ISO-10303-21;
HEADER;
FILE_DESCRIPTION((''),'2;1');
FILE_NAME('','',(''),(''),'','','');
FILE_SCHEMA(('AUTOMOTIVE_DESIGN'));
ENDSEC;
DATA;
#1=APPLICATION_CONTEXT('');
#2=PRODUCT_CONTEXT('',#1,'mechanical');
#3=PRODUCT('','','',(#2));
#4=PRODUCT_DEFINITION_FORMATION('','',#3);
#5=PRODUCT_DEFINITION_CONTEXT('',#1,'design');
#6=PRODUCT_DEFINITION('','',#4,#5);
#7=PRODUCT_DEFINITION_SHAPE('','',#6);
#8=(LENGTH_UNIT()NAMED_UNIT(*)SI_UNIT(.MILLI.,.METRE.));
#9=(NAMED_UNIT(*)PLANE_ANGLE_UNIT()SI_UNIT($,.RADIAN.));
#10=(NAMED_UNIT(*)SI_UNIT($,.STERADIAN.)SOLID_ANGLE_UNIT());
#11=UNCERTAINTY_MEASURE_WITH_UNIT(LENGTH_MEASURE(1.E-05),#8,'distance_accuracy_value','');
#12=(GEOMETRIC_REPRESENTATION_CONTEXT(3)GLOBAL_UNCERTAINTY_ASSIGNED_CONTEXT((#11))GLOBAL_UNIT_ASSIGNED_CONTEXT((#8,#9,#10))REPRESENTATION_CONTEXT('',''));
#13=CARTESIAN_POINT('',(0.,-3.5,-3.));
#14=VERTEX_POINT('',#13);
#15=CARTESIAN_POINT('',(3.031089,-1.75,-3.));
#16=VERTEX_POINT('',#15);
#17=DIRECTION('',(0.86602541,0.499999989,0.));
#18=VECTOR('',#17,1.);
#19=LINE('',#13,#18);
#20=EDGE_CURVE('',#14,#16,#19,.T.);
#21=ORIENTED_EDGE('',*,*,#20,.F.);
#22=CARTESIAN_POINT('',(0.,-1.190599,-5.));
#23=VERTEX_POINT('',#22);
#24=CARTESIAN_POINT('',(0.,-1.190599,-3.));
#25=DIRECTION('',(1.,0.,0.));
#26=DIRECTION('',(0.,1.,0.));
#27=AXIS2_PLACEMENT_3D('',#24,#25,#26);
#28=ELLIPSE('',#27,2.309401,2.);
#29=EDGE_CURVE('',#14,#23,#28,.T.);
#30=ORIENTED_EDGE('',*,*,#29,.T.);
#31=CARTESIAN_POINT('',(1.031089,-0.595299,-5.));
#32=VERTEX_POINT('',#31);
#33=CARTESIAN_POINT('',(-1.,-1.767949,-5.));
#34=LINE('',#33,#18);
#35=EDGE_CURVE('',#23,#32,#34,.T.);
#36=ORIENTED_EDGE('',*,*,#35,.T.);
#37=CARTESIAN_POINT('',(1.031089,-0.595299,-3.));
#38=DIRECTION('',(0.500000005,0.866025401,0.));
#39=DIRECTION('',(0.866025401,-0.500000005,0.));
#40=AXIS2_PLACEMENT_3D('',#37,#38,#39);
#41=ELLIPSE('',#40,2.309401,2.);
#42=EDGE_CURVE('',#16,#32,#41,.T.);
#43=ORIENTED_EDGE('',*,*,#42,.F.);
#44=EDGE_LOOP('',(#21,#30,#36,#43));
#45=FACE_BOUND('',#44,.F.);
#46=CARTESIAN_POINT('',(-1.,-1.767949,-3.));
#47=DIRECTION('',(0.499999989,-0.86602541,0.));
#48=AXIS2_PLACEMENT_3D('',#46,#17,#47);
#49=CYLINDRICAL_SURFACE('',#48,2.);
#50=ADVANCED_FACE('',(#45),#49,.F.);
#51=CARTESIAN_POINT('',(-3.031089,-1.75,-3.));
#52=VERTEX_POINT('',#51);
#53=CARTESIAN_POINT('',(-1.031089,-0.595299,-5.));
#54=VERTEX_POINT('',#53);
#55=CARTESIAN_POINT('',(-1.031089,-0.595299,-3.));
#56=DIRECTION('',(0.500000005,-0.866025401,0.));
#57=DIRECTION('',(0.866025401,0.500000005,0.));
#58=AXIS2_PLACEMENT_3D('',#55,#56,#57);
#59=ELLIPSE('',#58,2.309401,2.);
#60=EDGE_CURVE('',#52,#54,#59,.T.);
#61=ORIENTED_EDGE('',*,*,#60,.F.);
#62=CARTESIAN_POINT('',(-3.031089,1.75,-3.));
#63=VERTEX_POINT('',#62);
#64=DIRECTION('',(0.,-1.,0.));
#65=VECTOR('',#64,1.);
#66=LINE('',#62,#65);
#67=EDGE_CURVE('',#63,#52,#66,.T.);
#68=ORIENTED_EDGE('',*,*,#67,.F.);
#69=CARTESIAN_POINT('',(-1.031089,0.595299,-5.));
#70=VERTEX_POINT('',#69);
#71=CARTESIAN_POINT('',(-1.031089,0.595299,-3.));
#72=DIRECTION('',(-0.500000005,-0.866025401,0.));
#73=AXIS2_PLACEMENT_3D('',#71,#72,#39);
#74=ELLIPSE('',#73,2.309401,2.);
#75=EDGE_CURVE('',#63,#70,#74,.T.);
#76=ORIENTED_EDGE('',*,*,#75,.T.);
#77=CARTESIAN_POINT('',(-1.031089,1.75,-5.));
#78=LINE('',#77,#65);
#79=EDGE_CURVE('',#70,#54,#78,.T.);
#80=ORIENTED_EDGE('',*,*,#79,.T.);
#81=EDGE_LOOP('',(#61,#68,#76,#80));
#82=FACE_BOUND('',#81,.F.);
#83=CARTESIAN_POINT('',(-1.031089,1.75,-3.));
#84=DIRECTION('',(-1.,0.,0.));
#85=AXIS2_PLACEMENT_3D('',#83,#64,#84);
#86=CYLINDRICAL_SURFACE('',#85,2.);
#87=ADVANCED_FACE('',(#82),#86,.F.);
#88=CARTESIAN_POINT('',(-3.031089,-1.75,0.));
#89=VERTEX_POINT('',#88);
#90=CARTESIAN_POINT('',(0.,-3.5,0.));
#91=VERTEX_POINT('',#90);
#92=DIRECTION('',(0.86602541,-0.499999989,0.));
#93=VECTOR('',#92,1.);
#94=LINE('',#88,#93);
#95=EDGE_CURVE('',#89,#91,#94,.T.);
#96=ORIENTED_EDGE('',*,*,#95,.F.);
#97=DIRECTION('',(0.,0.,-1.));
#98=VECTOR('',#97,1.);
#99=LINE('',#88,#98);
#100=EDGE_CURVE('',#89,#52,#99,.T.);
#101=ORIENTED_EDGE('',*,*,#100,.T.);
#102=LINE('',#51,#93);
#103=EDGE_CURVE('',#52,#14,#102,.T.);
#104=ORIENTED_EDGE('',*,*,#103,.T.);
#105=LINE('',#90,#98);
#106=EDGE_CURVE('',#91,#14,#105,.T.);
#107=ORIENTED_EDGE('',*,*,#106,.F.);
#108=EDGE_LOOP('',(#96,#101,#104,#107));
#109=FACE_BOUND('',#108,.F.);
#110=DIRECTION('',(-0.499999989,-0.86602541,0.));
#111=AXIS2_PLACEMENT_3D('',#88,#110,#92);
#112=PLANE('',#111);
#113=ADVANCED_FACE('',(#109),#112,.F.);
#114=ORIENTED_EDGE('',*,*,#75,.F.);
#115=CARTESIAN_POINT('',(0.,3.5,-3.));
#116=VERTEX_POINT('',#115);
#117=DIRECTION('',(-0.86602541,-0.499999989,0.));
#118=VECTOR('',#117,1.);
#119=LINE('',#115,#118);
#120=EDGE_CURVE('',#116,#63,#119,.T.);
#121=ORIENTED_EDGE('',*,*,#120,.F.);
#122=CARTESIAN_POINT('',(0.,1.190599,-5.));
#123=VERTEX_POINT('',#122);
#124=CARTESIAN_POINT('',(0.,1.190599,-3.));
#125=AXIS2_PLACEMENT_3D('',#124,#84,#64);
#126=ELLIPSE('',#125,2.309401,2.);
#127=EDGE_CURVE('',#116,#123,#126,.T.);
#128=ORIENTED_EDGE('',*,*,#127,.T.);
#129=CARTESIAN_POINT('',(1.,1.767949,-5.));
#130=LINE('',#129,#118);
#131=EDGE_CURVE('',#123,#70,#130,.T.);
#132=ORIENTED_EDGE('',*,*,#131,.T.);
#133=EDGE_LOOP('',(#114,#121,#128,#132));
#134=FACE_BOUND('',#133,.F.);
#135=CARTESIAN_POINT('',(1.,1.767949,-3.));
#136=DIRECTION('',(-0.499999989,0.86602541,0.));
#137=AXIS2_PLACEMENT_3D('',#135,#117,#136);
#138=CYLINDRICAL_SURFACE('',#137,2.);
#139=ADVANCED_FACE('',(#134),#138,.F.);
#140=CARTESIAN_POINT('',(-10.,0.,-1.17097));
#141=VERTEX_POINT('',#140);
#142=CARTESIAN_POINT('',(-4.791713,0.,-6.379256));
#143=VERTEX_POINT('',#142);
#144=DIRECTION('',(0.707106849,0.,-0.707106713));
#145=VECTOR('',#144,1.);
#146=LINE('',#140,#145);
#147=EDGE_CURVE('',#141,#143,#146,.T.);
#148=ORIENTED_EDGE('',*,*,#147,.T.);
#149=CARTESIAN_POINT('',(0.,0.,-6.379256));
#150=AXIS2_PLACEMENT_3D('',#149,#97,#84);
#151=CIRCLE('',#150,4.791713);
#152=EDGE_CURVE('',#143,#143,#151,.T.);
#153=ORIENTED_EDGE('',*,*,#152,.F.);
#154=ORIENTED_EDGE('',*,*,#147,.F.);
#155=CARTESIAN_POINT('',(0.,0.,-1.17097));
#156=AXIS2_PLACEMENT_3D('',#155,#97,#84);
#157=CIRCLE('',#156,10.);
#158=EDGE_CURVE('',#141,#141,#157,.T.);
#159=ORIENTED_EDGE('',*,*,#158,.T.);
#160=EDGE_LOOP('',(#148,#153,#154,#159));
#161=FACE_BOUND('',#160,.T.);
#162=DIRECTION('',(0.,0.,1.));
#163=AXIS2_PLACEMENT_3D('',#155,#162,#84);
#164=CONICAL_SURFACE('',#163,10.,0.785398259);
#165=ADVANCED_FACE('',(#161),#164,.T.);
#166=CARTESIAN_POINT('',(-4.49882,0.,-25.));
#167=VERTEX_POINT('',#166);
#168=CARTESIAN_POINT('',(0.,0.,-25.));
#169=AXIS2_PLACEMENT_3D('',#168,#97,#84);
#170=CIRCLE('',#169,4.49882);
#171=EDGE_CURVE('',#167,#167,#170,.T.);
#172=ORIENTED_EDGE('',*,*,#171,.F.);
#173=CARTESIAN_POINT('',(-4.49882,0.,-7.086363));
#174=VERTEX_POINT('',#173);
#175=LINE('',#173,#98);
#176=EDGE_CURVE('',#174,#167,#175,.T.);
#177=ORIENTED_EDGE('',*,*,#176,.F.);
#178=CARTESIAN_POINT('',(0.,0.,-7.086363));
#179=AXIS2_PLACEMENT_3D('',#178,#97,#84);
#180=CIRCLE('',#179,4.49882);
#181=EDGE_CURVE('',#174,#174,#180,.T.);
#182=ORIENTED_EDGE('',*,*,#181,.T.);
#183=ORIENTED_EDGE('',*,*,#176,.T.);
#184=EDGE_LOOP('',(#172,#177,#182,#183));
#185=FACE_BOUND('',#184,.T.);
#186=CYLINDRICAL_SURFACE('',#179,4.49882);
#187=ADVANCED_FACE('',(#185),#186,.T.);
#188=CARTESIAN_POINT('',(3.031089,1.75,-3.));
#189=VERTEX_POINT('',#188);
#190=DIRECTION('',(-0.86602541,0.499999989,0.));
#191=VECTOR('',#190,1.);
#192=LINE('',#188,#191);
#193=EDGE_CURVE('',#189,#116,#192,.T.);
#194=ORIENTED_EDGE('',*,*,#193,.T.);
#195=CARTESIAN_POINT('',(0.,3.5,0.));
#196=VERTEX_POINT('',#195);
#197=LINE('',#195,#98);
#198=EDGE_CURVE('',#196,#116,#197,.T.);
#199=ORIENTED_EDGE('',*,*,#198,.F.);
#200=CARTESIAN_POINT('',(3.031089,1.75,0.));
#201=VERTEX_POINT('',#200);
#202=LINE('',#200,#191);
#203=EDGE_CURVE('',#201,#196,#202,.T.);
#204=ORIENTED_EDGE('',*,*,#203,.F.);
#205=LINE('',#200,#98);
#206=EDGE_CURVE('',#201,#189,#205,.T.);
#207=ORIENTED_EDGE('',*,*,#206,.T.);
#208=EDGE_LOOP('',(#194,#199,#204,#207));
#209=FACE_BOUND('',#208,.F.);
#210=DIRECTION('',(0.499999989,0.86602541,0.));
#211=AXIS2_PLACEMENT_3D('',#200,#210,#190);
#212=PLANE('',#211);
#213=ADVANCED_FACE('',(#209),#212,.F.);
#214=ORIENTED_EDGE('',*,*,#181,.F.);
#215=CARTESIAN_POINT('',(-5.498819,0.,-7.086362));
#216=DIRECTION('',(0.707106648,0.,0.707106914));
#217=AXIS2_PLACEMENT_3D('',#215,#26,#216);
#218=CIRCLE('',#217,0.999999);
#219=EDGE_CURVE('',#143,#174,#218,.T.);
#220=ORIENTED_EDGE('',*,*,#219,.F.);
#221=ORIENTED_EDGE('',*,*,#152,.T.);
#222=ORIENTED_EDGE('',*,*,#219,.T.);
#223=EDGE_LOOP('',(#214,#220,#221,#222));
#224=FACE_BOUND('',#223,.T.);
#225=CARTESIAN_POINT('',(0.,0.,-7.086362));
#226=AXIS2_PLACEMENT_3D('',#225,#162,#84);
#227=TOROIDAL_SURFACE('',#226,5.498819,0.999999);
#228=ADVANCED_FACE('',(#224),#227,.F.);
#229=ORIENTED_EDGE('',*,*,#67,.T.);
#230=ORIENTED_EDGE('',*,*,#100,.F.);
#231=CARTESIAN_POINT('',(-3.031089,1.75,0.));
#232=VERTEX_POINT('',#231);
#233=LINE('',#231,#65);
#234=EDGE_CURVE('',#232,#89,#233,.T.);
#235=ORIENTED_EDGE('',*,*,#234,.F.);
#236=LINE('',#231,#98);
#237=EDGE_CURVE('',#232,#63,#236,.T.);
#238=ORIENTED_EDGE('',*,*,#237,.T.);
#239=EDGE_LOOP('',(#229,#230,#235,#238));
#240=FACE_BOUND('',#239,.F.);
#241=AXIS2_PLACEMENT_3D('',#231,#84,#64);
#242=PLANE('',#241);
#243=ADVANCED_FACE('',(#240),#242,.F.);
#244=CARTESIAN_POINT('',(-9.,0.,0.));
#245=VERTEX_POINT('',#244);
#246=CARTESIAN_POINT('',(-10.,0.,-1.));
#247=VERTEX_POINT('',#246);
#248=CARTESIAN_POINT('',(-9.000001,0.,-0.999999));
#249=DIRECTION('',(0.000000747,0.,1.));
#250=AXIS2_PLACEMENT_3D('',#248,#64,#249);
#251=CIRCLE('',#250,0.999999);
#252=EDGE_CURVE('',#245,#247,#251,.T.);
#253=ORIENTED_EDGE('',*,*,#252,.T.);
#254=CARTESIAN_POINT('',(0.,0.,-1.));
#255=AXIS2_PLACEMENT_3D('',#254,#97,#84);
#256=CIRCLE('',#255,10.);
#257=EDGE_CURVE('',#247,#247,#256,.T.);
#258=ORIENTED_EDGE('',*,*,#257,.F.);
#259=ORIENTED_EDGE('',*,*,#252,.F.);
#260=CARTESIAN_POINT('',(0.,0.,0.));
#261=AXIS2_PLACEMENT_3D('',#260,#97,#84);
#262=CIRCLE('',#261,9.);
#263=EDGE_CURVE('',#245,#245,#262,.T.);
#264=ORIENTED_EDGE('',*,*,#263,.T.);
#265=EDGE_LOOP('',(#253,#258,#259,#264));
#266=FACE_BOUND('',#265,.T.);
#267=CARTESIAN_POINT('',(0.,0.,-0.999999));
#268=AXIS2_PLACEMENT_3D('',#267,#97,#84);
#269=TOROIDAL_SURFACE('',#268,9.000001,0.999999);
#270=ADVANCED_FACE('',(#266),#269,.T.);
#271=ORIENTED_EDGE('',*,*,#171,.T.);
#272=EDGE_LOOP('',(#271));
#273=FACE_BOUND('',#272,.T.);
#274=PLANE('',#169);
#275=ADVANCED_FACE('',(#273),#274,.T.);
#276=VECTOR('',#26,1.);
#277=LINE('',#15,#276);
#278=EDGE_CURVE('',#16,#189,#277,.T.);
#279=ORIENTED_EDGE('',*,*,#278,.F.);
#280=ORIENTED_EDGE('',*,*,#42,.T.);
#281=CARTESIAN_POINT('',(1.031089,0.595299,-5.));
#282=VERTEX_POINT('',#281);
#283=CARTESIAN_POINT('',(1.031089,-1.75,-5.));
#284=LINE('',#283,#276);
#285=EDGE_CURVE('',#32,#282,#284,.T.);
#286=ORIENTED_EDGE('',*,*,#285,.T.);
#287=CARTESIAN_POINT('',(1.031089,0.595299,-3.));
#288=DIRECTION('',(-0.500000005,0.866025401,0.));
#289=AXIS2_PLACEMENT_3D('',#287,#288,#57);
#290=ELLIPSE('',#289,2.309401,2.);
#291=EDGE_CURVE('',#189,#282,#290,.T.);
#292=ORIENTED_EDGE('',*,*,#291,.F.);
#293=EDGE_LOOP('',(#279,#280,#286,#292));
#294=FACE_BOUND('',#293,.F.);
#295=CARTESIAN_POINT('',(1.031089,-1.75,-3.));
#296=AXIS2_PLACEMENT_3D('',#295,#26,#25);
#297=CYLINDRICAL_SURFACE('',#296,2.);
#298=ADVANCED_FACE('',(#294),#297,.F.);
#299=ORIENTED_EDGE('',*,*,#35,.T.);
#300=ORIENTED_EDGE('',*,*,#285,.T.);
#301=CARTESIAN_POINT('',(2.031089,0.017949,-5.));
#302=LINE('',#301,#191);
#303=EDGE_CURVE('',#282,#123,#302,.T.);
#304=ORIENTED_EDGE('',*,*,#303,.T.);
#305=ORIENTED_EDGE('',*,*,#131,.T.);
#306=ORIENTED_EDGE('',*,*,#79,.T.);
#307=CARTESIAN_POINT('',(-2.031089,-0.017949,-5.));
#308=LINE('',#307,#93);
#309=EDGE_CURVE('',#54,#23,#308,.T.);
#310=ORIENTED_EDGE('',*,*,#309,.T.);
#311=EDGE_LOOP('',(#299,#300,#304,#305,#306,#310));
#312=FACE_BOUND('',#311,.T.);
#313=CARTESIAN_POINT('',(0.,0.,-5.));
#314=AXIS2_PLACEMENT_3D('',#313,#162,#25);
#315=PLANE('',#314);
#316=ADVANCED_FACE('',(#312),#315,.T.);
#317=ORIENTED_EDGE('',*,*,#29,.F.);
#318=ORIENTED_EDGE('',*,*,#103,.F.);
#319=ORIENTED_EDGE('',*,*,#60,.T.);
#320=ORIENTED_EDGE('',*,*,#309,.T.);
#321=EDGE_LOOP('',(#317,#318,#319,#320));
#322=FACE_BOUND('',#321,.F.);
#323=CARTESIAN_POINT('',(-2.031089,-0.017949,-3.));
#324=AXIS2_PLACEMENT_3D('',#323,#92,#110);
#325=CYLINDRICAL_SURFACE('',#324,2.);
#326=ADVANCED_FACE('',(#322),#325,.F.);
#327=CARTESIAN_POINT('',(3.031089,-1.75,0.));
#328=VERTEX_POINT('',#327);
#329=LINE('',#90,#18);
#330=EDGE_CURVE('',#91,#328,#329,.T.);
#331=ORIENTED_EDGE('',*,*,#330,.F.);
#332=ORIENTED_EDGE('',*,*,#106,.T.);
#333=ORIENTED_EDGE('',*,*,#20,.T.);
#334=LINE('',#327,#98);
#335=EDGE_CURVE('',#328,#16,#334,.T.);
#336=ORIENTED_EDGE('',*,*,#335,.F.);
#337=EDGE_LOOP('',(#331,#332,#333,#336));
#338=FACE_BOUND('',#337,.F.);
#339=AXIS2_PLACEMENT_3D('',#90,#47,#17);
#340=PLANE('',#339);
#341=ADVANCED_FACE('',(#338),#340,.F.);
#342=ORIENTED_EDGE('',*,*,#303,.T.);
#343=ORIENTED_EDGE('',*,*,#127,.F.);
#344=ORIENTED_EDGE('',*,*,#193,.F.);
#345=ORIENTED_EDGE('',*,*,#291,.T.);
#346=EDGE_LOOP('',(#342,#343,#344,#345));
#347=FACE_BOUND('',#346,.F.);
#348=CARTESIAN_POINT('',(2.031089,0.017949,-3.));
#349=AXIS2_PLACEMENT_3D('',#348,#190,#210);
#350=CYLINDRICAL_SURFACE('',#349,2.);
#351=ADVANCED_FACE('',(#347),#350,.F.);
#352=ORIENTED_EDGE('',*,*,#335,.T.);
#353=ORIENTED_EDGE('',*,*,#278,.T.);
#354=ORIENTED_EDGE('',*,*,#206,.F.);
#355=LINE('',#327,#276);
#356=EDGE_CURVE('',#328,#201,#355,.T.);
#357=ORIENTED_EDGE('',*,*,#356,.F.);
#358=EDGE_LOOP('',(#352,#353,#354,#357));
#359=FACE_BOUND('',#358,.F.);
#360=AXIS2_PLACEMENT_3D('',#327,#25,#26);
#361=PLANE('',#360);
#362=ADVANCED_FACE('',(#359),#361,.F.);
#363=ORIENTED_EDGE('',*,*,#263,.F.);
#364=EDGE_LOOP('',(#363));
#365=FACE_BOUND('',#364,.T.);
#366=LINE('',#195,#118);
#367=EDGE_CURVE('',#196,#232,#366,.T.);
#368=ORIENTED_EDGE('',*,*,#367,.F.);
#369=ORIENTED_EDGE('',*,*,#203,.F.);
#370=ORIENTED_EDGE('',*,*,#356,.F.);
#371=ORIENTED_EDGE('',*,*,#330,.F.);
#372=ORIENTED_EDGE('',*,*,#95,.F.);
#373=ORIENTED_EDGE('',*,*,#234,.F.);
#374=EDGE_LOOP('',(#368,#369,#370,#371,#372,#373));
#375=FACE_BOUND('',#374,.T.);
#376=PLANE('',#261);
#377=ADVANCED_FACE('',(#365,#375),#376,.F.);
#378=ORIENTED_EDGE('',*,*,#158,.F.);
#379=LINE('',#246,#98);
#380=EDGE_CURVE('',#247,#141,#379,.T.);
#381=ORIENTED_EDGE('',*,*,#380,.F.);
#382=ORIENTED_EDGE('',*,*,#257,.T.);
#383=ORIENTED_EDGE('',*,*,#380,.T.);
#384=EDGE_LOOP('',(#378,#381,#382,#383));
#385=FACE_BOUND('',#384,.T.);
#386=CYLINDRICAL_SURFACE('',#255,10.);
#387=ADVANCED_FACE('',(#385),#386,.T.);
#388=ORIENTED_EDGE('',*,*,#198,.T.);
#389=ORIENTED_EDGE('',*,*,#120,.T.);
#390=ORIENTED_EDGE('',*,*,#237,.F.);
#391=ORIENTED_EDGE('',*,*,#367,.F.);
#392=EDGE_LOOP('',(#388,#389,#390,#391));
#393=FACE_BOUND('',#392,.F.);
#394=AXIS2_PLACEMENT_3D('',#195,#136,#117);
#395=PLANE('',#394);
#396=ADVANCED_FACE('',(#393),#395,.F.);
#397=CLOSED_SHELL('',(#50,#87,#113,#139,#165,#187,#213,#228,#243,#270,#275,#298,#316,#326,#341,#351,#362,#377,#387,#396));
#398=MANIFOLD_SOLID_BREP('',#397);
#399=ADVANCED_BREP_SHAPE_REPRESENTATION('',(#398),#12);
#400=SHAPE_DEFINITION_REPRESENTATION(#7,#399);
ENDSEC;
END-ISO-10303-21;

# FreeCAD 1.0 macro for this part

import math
import FreeCAD as App
import Part
import Sketcher
Q = App.Units.Quantity


def edges_at(feature, points):
    """Names of the edges that pass closest to the given points."""
    edges = feature.Shape.Edges
    near = lambda p: min(range(len(edges)), key=lambda i: edges[i].distToShape(Part.Vertex(*p))[0])
    return sorted({f"Edge{near(p) + 1}" for p in points})

doc = App.newDocument("Part")
body = doc.addObject("PartDesign::Body", "Body")

sketch1 = body.newObject("Sketcher::SketchObject", "Sketch")
sketch1.AttachmentSupport = (doc.getObject("XZ_Plane"), [""])
sketch1.MapMode = "FlatFace"
sketch1.addGeometry([
    Part.LineSegment(App.Vector(0, -25, 0), App.Vector(0, 0, 0)),
    Part.LineSegment(App.Vector(0, 0, 0), App.Vector(-9, 0, 0)),
    Part.ArcOfCircle(Part.Circle(App.Vector(-9, -1, 0), App.Vector(0, 0, 1), 1), math.radians(90), math.radians(180)),
    Part.LineSegment(App.Vector(-10, -1, 0), App.Vector(-10, -1.17, 0)),
    Part.LineSegment(App.Vector(-10, -1.17, 0), App.Vector(-4.79, -6.38, 0)),
    Part.ArcOfCircle(Part.Circle(App.Vector(-5.5, -7.09, 0), App.Vector(0, 0, 1), 1), math.radians(0), math.radians(45)),
    Part.LineSegment(App.Vector(-4.5, -7.09, 0), App.Vector(-4.5, -25, 0)),
    Part.LineSegment(App.Vector(-4.5, -25, 0), App.Vector(0, -25, 0)),
], False)
sketch1.addConstraint([
    Sketcher.Constraint("Coincident", 0, 2, 1, 1),
    Sketcher.Constraint("Tangent", 1, 2, 2, 1),
    Sketcher.Constraint("Tangent", 2, 2, 3, 1),
    Sketcher.Constraint("Coincident", 3, 2, 4, 1),
    Sketcher.Constraint("Tangent", 4, 2, 5, 2),
    Sketcher.Constraint("Tangent", 5, 1, 6, 1),
    Sketcher.Constraint("Coincident", 6, 2, 7, 1),
    Sketcher.Constraint("Coincident", 7, 2, 0, 1),
    Sketcher.Constraint("Vertical", 0),
    Sketcher.Constraint("Horizontal", 1),
    Sketcher.Constraint("Vertical", 3),
    Sketcher.Constraint("Vertical", 6),
    Sketcher.Constraint("Horizontal", 7),
    Sketcher.Constraint("Coincident", 0, 2, -1, 1),
    Sketcher.Constraint("Equal", 2, 5),
    Sketcher.Constraint("Radius", 2, 0.999999),
    Sketcher.Constraint("DistanceX", 1, 2, 1, 1, 9.0),
    Sketcher.Constraint("DistanceY", 0, 1, 0, 2, 25.0),
    Sketcher.Constraint("Angle", 4, Q("-44.999994 deg")),
    Sketcher.Constraint("DistanceX", 7, 1, 7, 2, 4.49882),
    Sketcher.Constraint("DistanceY", 3, 2, 3, 1, 0.17097),
])
revolution = body.newObject("PartDesign::Revolution", "Revolution")
revolution.Profile = sketch1
revolution.ReferenceAxis = (sketch1, ["V_Axis"])
revolution.Angle = 360

sketch2 = body.newObject("Sketcher::SketchObject", "Sketch001")
sketch2.AttachmentSupport = (doc.getObject("XY_Plane"), [""])
sketch2.MapMode = "FlatFace"
sketch2.addGeometry([
    Part.LineSegment(App.Vector(-3, -1.8, 0), App.Vector(0, -3.5, 0)),
    Part.LineSegment(App.Vector(0, -3.5, 0), App.Vector(3, -1.8, 0)),
    Part.LineSegment(App.Vector(3, -1.8, 0), App.Vector(3, 1.8, 0)),
    Part.LineSegment(App.Vector(3, 1.8, 0), App.Vector(0, 3.5, 0)),
    Part.LineSegment(App.Vector(0, 3.5, 0), App.Vector(-3, 1.8, 0)),
    Part.LineSegment(App.Vector(-3, 1.8, 0), App.Vector(-3, -1.8, 0)),
], False)
sketch2.addConstraint([
    Sketcher.Constraint("Coincident", 0, 2, 1, 1),
    Sketcher.Constraint("Coincident", 1, 2, 2, 1),
    Sketcher.Constraint("Coincident", 2, 2, 3, 1),
    Sketcher.Constraint("Coincident", 3, 2, 4, 1),
    Sketcher.Constraint("Coincident", 4, 2, 5, 1),
    Sketcher.Constraint("Coincident", 5, 2, 0, 1),
    Sketcher.Constraint("Vertical", 2),
    Sketcher.Constraint("Vertical", 5),
    Sketcher.Constraint("Symmetric", 0, 2, 3, 2, -1, 1),
    Sketcher.Constraint("Symmetric", 1, 2, 4, 2, -1, 1),
    Sketcher.Constraint("PointOnObject", 0, 2, -2),
    Sketcher.Constraint("Parallel", 0, 3),
    Sketcher.Constraint("Horizontal", 2, 2, 4, 2),
    Sketcher.Constraint("Angle", 0, Q("-29.999999 deg")),
    Sketcher.Constraint("DistanceY", 2, 1, 2, 2, 3.5),
    Sketcher.Constraint("DistanceY", 0, 2, 3, 2, 7.0),
])
pocket1 = body.newObject("PartDesign::Pocket", "Pocket")
pocket1.Profile = sketch2
pocket1.Length = 5
doc.recompute()

fillet = body.newObject("PartDesign::Fillet", "Fillet")
fillet.Base = (pocket1, edges_at(pocket1, [
    (1.516, -2.625, -5),
    (3.031, 0, -5),
    (-1.516, -2.625, -5),
    (-3.031, 0, -5),
    (-1.516, 2.625, -5),
    (1.516, 2.625, -5),
]))
fillet.Radius = 2

doc.recompute()
